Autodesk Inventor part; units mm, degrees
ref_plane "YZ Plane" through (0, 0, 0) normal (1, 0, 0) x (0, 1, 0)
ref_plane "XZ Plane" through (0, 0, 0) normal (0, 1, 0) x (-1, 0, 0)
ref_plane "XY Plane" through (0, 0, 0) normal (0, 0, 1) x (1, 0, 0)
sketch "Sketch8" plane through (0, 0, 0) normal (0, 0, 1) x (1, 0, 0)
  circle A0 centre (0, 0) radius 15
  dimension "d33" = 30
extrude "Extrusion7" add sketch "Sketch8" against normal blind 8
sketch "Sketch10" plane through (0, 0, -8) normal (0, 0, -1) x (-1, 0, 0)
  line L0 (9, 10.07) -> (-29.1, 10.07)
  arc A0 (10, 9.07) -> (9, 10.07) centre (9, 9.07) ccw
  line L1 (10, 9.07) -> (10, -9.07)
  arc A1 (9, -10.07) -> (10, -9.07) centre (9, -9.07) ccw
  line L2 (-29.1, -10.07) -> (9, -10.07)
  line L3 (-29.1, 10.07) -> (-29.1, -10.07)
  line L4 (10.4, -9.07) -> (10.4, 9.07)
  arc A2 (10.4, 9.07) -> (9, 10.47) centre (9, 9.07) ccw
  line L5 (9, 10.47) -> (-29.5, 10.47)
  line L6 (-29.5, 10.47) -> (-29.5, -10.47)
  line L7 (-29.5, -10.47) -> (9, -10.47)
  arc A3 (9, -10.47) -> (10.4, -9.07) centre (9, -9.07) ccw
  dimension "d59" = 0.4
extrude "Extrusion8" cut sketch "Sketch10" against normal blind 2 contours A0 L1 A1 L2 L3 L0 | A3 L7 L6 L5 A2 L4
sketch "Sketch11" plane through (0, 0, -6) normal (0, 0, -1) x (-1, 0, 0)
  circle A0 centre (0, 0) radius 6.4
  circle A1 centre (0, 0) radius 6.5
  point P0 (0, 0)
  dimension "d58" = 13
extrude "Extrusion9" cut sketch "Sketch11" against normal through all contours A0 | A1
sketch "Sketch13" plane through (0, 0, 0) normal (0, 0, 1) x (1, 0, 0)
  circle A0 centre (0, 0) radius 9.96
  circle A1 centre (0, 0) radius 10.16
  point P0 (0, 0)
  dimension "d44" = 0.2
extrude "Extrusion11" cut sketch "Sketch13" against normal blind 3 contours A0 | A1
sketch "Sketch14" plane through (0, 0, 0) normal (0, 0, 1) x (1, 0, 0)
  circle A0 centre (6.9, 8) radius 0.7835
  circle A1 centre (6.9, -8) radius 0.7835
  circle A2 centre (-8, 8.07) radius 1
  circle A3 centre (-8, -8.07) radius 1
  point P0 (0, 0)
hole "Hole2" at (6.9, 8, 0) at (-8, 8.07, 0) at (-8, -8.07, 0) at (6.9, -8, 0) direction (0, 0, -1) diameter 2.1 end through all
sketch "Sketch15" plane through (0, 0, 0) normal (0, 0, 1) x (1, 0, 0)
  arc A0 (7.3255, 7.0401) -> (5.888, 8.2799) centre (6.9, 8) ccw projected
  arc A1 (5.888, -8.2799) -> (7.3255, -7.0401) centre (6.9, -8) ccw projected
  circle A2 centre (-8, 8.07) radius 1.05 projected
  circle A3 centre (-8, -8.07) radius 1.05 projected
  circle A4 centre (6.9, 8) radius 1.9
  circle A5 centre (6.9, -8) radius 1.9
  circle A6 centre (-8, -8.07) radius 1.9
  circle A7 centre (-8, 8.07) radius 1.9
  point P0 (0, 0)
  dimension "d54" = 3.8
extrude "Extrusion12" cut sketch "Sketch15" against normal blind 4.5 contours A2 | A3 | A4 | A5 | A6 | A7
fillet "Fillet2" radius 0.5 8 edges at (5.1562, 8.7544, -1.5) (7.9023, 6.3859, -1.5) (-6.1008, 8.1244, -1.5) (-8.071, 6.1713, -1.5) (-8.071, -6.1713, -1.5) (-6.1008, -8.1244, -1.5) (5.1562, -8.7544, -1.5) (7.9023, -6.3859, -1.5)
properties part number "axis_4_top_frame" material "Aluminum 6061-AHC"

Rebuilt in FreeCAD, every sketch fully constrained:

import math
import FreeCAD as App
import Part
import Sketcher
from FreeCAD import Vector


def edges_at(feature, points):
    """Names of the edges that pass closest to the given points."""
    edges = feature.Shape.Edges
    near = lambda p: min(range(len(edges)), key=lambda i: edges[i].distToShape(Part.Vertex(*p))[0])
    return sorted({f"Edge{near(p) + 1}" for p in points})

doc = App.newDocument("Part")
body = doc.addObject("PartDesign::Body", "Body")

# Sketch on XY plane
sketch1 = body.newObject("Sketcher::SketchObject", "Sketch")
sketch1.AttachmentSupport = (doc.getObject("XY_Plane"), [""])
sketch1.MapMode = "FlatFace"
sketch1.addGeometry(Part.Circle(Vector(0, 0, 0), Vector(0, 0, 1), 15), False)
sketch1.addConstraint(Sketcher.Constraint("Coincident", 0, 3, -1, 1))
sketch1.addConstraint(Sketcher.Constraint("Diameter", 0, 30.0))
pad1 = body.newObject("PartDesign::Pad", "Pad")
pad1.Profile = sketch1
pad1.Length = 8
pad1.Reversed = True

# Sketch on XY plane
sketch2 = body.newObject("Sketcher::SketchObject", "Sketch001")
sketch2.AttachmentSupport = (doc.getObject("XY_Plane"), [""])
sketch2.MapMode = "FlatFace"
sketch2.AttachmentOffset = App.Placement(Vector(0, 0, -8), App.Rotation())
sketch2.addGeometry(Part.ArcOfCircle(Part.Circle(Vector(-9, -9.1, 0), Vector(0, 0, 1), 1.4), math.radians(180), math.radians(270)), False)
sketch2.addGeometry(Part.LineSegment(Vector(-10.4, -9.1, 0), Vector(-10.4, 9.1, 0)), False)
sketch2.addGeometry(Part.ArcOfCircle(Part.Circle(Vector(-9, 9.1, 0), Vector(0, 0, 1), 1.4), math.radians(90), math.radians(180)), False)
sketch2.addGeometry(Part.LineSegment(Vector(-9, 10.5, 0), Vector(29.5, 10.5, 0)), False)
sketch2.addGeometry(Part.LineSegment(Vector(29.5, 10.5, 0), Vector(29.5, -10.5, 0)), False)
sketch2.addGeometry(Part.LineSegment(Vector(29.5, -10.5, 0), Vector(-9, -10.5, 0)), False)
sketch2.addConstraint(Sketcher.Constraint("Tangent", 0, 1, 1, 1))
sketch2.addConstraint(Sketcher.Constraint("Tangent", 1, 2, 2, 2))
sketch2.addConstraint(Sketcher.Constraint("Tangent", 2, 1, 3, 1))
sketch2.addConstraint(Sketcher.Constraint("Coincident", 3, 2, 4, 1))
sketch2.addConstraint(Sketcher.Constraint("Coincident", 4, 2, 5, 1))
sketch2.addConstraint(Sketcher.Constraint("Tangent", 5, 2, 0, 2))
sketch2.addConstraint(Sketcher.Constraint("Vertical", 1))
sketch2.addConstraint(Sketcher.Constraint("Horizontal", 3))
sketch2.addConstraint(Sketcher.Constraint("Vertical", 4))
sketch2.addConstraint(Sketcher.Constraint("Horizontal", 5))
sketch2.addConstraint(Sketcher.Constraint("Equal", 0, 2))
sketch2.addConstraint(Sketcher.Constraint("Radius", 0, 1.4))
sketch2.addConstraint(Sketcher.Constraint("DistanceX", 3, 1, 3, 2, 38.5))
sketch2.addConstraint(Sketcher.Constraint("DistanceX", 0, 3, -1, 1, 9.0))
sketch2.addConstraint(Sketcher.Constraint("DistanceY", 1, 1, 1, 2, 18.14))
sketch2.addConstraint(Sketcher.Constraint("DistanceY", 0, 3, -1, 1, 9.07))
pocket1 = body.newObject("PartDesign::Pocket", "Pocket")
pocket1.Profile = sketch2
pocket1.Length = 2
pocket1.Reversed = True

# Sketch on XY plane
sketch3 = body.newObject("Sketcher::SketchObject", "Sketch002")
sketch3.AttachmentSupport = (doc.getObject("XY_Plane"), [""])
sketch3.MapMode = "FlatFace"
sketch3.AttachmentOffset = App.Placement(Vector(0, 0, -6), App.Rotation())
sketch3.addGeometry(Part.Circle(Vector(0, 0, 0), Vector(0, 0, 1), 6), False)
sketch3.addConstraint(Sketcher.Constraint("Coincident", 0, 3, -1, 1))
sketch3.addConstraint(Sketcher.Constraint("Diameter", 0, 13.0))
pocket2 = body.newObject("PartDesign::Pocket", "Pocket001")
pocket2.Profile = sketch3
pocket2.Type = "ThroughAll"
pocket2.Reversed = True

# Sketch on XY plane
sketch4 = body.newObject("Sketcher::SketchObject", "Sketch003")
sketch4.AttachmentSupport = (doc.getObject("XY_Plane"), [""])
sketch4.MapMode = "FlatFace"
sketch4.addGeometry(Part.Circle(Vector(0, 0, 0), Vector(0, 0, 1), 10), False)
sketch4.addConstraint(Sketcher.Constraint("Coincident", 0, 3, -1, 1))
sketch4.addConstraint(Sketcher.Constraint("Diameter", 0, 20.32))
pocket3 = body.newObject("PartDesign::Pocket", "Pocket002")
pocket3.Profile = sketch4
pocket3.Length = 3

# Sketch on XY plane
sketch5 = body.newObject("Sketcher::SketchObject", "Sketch004")
sketch5.AttachmentSupport = (doc.getObject("XY_Plane"), [""])
sketch5.MapMode = "FlatFace"
sketch5.addGeometry(Part.Circle(Vector(6.9, 8, 0), Vector(0, 0, 1), 1.1), False)
sketch5.addGeometry(Part.Circle(Vector(-8, 8.1, 0), Vector(0, 0, 1), 1.1), False)
sketch5.addGeometry(Part.Circle(Vector(-8, -8.1, 0), Vector(0, 0, 1), 1.1), False)
sketch5.addGeometry(Part.Circle(Vector(6.9, -8, 0), Vector(0, 0, 1), 1.1), False)
sketch5.addConstraint(Sketcher.Constraint("Equal", 0, 1))
sketch5.addConstraint(Sketcher.Constraint("Equal", 1, 2))
sketch5.addConstraint(Sketcher.Constraint("Equal", 2, 3))
sketch5.addConstraint(Sketcher.Constraint("Symmetric", 1, 3, 2, 3, -1))
sketch5.addConstraint(Sketcher.Constraint("Symmetric", 0, 3, 3, 3, -1))
sketch5.addConstraint(Sketcher.Constraint("Diameter", 0, 2.1))
sketch5.addConstraint(Sketcher.Constraint("DistanceY", -1, 1, 0, 3, 8.0))
sketch5.addConstraint(Sketcher.Constraint("DistanceX", 1, 3, -1, 1, 8.0))
sketch5.addConstraint(Sketcher.Constraint("DistanceX", -1, 1, 0, 3, 6.9))
sketch5.addConstraint(Sketcher.Constraint("DistanceY", -1, 1, 1, 3, 8.07))
doc.recompute()
hole = body.newObject("PartDesign::Hole", "Hole")
hole.Profile = sketch5
hole.ThreadType = "None"
hole.Diameter = 2.1
hole.DepthType = "ThroughAll"

# Sketch on XY plane
sketch6 = body.newObject("Sketcher::SketchObject", "Sketch005")
sketch6.AttachmentSupport = (doc.getObject("XY_Plane"), [""])
sketch6.MapMode = "FlatFace"
sketch6.addGeometry(Part.Circle(Vector(-8, 8.1, 0), Vector(0, 0, 1), 1.9), False)
sketch6.addGeometry(Part.Circle(Vector(-8, -8.1, 0), Vector(0, 0, 1), 1.9), False)
sketch6.addGeometry(Part.Circle(Vector(6.9, 8, 0), Vector(0, 0, 1), 1.9), False)
sketch6.addGeometry(Part.Circle(Vector(6.9, -8, 0), Vector(0, 0, 1), 1.9), False)
sketch6.addConstraint(Sketcher.Constraint("Equal", 0, 1))
sketch6.addConstraint(Sketcher.Constraint("Equal", 1, 2))
sketch6.addConstraint(Sketcher.Constraint("Equal", 2, 3))
sketch6.addConstraint(Sketcher.Constraint("Symmetric", 0, 3, 1, 3, -1))
sketch6.addConstraint(Sketcher.Constraint("Symmetric", 2, 3, 3, 3, -1))
sketch6.addConstraint(Sketcher.Constraint("Diameter", 0, 3.8))
sketch6.addConstraint(Sketcher.Constraint("DistanceX", 0, 3, -1, 1, 8.0))
sketch6.addConstraint(Sketcher.Constraint("DistanceY", -1, 1, 2, 3, 8.0))
sketch6.addConstraint(Sketcher.Constraint("DistanceX", -1, 1, 2, 3, 6.9))
sketch6.addConstraint(Sketcher.Constraint("DistanceY", -1, 1, 0, 3, 8.07))
pocket4 = body.newObject("PartDesign::Pocket", "Pocket003")
pocket4.Profile = sketch6
pocket4.Length = 4.5
doc.recompute()

fillet = body.newObject("PartDesign::Fillet", "Fillet")
fillet.Base = (pocket4, edges_at(pocket4, [
    (5.156, 8.754, -1.5),
    (7.902, 6.386, -1.5),
    (-6.101, 8.124, -1.5),
    (-8.071, 6.171, -1.5),
    (-8.071, -6.171, -1.5),
    (-6.101, -8.124, -1.5),
    (5.156, -8.754, -1.5),
    (7.902, -6.386, -1.5),
]))
fillet.Radius = 0.5

doc.recompute()
